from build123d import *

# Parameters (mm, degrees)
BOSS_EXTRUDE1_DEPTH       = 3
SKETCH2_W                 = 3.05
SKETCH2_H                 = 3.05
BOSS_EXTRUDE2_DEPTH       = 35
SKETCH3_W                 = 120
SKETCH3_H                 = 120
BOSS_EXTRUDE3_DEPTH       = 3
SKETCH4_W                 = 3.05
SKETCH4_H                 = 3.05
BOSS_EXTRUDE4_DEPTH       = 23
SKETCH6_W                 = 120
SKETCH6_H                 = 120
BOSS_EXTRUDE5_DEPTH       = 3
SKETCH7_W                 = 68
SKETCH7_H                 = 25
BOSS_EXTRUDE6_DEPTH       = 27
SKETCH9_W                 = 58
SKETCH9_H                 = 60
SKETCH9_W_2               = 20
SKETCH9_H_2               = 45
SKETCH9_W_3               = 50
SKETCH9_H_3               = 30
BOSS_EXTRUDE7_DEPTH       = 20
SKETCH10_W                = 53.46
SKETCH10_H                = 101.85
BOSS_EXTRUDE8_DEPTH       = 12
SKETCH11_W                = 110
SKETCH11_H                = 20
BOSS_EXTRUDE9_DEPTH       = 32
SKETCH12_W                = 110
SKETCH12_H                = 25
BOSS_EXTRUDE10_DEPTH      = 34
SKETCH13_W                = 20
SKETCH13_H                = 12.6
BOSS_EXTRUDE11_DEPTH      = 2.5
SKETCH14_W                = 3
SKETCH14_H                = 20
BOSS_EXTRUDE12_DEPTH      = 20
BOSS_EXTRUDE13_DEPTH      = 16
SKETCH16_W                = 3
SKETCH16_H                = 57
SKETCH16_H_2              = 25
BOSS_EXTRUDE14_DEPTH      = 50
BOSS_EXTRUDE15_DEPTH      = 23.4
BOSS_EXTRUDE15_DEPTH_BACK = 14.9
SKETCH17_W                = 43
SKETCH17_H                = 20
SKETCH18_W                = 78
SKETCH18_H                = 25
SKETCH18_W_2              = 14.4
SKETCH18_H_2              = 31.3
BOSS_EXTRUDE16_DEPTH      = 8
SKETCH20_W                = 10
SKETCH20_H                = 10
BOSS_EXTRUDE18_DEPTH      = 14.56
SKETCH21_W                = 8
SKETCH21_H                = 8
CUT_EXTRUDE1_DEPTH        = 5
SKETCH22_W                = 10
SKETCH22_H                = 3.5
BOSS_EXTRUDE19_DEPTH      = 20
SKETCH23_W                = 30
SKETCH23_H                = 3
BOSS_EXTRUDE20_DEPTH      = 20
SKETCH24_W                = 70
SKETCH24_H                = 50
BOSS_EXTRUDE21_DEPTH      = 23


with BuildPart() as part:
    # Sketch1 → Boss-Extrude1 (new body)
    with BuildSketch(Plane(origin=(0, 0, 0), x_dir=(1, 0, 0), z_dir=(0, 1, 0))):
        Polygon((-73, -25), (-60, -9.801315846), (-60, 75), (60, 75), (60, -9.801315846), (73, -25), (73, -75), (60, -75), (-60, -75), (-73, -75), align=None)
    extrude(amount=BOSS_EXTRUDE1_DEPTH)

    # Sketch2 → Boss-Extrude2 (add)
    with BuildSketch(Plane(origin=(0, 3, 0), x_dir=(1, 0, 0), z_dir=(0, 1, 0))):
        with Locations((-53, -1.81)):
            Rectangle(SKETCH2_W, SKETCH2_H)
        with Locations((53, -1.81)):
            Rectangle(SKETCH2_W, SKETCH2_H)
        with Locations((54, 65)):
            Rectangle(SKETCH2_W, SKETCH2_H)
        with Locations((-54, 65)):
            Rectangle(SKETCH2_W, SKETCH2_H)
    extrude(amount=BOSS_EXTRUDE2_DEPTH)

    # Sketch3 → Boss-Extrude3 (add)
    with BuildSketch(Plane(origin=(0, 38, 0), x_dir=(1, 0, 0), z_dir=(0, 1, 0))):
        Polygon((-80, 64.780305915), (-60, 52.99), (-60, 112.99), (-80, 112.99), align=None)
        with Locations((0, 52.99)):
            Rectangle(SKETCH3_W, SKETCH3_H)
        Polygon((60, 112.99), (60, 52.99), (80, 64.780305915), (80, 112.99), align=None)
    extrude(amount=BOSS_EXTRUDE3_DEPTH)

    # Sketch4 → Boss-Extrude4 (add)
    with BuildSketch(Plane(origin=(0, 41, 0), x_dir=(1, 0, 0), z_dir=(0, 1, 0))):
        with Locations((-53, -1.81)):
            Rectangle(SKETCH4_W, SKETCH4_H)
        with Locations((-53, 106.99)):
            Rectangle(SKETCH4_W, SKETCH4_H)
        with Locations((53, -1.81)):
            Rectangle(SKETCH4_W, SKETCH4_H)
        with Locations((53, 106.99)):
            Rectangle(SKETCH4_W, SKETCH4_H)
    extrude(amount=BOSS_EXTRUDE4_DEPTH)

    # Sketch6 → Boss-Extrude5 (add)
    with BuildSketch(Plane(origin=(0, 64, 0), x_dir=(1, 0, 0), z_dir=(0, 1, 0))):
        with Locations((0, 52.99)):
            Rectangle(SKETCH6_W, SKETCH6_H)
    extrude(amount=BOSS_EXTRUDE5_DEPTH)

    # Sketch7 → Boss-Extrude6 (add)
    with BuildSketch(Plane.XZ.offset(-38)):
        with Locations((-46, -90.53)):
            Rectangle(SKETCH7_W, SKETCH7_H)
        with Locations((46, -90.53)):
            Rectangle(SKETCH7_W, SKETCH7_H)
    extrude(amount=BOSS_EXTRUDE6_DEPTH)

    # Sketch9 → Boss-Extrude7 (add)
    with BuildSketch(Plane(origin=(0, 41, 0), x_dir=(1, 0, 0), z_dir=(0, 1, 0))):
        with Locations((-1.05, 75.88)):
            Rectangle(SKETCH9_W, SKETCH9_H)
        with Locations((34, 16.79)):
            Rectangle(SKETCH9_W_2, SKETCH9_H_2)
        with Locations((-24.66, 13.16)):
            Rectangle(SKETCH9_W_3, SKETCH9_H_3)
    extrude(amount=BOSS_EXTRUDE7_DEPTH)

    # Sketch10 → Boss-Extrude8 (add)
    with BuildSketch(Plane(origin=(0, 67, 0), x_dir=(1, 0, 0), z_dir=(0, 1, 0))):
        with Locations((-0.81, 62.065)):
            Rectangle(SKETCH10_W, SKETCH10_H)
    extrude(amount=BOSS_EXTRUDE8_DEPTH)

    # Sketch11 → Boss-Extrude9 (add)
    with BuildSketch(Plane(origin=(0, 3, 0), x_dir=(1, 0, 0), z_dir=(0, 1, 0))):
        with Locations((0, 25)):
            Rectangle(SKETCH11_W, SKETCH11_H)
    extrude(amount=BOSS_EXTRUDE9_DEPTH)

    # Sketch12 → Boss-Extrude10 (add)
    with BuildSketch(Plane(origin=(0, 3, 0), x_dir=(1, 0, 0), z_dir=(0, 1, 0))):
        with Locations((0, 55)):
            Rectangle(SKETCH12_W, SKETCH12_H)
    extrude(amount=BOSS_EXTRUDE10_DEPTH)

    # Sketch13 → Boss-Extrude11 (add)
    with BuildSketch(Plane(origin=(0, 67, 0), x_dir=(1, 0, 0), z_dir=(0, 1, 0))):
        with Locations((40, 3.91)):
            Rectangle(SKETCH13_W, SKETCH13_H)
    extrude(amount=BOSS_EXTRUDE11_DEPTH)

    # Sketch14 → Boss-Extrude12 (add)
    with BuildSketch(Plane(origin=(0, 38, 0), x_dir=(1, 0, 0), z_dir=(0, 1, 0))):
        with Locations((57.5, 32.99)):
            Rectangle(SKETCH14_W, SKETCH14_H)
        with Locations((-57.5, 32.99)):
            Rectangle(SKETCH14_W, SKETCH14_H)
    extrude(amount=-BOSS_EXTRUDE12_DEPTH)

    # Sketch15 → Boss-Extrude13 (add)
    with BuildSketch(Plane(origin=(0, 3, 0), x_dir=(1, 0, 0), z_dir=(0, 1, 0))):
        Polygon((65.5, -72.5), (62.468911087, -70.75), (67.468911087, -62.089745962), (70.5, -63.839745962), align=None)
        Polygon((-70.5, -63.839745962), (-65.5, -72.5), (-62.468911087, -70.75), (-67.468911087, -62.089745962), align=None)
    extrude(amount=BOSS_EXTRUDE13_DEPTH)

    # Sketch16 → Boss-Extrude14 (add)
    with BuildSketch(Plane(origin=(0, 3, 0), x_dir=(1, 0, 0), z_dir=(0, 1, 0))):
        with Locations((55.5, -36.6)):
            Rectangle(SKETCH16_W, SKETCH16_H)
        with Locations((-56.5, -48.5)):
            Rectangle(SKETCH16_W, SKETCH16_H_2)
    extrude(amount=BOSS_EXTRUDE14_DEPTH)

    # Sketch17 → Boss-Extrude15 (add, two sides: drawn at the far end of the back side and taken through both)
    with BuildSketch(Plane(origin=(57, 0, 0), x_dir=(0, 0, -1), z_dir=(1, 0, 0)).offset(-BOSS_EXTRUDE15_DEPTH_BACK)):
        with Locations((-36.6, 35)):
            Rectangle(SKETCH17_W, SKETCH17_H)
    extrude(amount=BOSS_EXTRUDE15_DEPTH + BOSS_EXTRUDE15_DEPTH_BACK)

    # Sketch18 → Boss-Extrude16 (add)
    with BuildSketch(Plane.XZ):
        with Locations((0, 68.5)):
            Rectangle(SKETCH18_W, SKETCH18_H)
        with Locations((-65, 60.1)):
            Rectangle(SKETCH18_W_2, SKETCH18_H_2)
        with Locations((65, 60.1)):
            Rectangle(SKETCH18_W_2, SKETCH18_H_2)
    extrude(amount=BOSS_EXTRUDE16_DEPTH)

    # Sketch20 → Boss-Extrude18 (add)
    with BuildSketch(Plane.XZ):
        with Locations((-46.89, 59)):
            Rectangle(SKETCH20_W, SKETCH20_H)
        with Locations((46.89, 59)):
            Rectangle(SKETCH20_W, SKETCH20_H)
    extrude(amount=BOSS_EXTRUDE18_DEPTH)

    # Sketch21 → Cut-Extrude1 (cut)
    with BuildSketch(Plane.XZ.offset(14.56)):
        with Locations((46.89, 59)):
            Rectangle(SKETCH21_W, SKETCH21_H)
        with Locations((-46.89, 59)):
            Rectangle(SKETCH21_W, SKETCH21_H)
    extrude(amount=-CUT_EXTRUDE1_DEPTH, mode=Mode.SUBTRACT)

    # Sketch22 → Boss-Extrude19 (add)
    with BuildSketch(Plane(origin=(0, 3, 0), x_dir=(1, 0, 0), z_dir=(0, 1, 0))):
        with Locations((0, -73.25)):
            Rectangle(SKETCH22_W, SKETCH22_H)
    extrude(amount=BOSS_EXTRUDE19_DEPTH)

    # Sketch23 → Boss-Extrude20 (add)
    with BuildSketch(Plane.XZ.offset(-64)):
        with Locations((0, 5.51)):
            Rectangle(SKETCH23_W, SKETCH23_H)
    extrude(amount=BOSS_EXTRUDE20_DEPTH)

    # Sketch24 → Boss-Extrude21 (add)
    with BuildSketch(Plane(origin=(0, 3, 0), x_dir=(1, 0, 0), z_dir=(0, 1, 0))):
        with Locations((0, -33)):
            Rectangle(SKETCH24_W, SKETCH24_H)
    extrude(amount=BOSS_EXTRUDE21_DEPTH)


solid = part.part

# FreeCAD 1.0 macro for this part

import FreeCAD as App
import Part
import Sketcher

V = App.Vector
Q = App.Units.Quantity


def add_polygon(sketch, points):
    """Adds a closed chain of lines whose ends are joined by coincident constraints."""
    first, n = sketch.GeometryCount, len(points)
    for a, b in zip(points, points[1:] + points[:1]):
        sketch.addGeometry(Part.LineSegment(App.Vector(*a, 0), App.Vector(*b, 0)), False)
    for i in range(n):
        sketch.addConstraint(Sketcher.Constraint("Coincident", first + i, 2, first + (i + 1) % n, 1))

doc = App.newDocument("Part")
body = doc.addObject("PartDesign::Body", "Body")

sketch1 = body.newObject("Sketcher::SketchObject", "Sketch")
sketch1.AttachmentSupport = (doc.getObject("XZ_Plane"), [""])
sketch1.MapMode = "FlatFace"
add_polygon(sketch1, [(-60, 9.801316), (-73, 25), (-73, 75), (73, 75), (73, 25), (60, 9.801316), (60, -75), (-60, -75)])
sketch1.addConstraint(Sketcher.Constraint("Vertical", 1))
sketch1.addConstraint(Sketcher.Constraint("Horizontal", 2))
sketch1.addConstraint(Sketcher.Constraint("Vertical", 3))
sketch1.addConstraint(Sketcher.Constraint("Vertical", 5))
sketch1.addConstraint(Sketcher.Constraint("Horizontal", 6))
sketch1.addConstraint(Sketcher.Constraint("Vertical", 7))
sketch1.addConstraint(Sketcher.Constraint("Symmetric", 0, 2, 3, 2, -2))
sketch1.addConstraint(Sketcher.Constraint("Symmetric", 4, 2, 7, 2, -2))
sketch1.addConstraint(Sketcher.Constraint("DistanceX", 2, 1, 2, 2, Q("146 mm")))
sketch1.addConstraint(Sketcher.Constraint("DistanceX", 6, 2, 6, 1, Q("120 mm")))
sketch1.addConstraint(Sketcher.Constraint("DistanceY", 1, 1, 1, 2, Q("50 mm")))
sketch1.addConstraint(Sketcher.Constraint("Distance", 0, Q("20 mm")))
sketch1.addConstraint(Sketcher.Constraint("DistanceY", -1, 1, 0, 2, Q("25 mm")))
sketch1.addConstraint(Sketcher.Constraint("DistanceY", 5, 2, -1, 1, Q("75 mm")))
pad1 = body.newObject("PartDesign::Pad", "Pad")
pad1.Profile = sketch1
pad1.Length = 3
pad1.Reversed = True

sketch2 = body.newObject("Sketcher::SketchObject", "Sketch001")
sketch2.AttachmentSupport = (doc.getObject("XZ_Plane"), [""])
sketch2.MapMode = "FlatFace"
sketch2.AttachmentOffset = App.Placement(V(0, 0, -3), App.Rotation())
add_polygon(sketch2, [(-54.525, 0.285), (-54.525, 3.335), (-51.475, 3.335), (-51.475, 0.285)])
add_polygon(sketch2, [(51.475, 0.285), (51.475, 3.335), (54.525, 3.335), (54.525, 0.285)])
add_polygon(sketch2, [(52.475, -66.525), (52.475, -63.475), (55.525, -63.475), (55.525, -66.525)])
add_polygon(sketch2, [(-55.525, -66.525), (-55.525, -63.475), (-52.475, -63.475), (-52.475, -66.525)])
sketch2.addConstraint(Sketcher.Constraint("Vertical", 0))
sketch2.addConstraint(Sketcher.Constraint("Horizontal", 1))
sketch2.addConstraint(Sketcher.Constraint("Vertical", 2))
sketch2.addConstraint(Sketcher.Constraint("Horizontal", 3))
sketch2.addConstraint(Sketcher.Constraint("Vertical", 4))
sketch2.addConstraint(Sketcher.Constraint("Horizontal", 5))
sketch2.addConstraint(Sketcher.Constraint("Vertical", 6))
sketch2.addConstraint(Sketcher.Constraint("Horizontal", 7))
sketch2.addConstraint(Sketcher.Constraint("Vertical", 8))
sketch2.addConstraint(Sketcher.Constraint("Horizontal", 9))
sketch2.addConstraint(Sketcher.Constraint("Vertical", 10))
sketch2.addConstraint(Sketcher.Constraint("Horizontal", 11))
sketch2.addConstraint(Sketcher.Constraint("Vertical", 12))
sketch2.addConstraint(Sketcher.Constraint("Horizontal", 13))
sketch2.addConstraint(Sketcher.Constraint("Vertical", 14))
sketch2.addConstraint(Sketcher.Constraint("Horizontal", 15))
sketch2.addConstraint(Sketcher.Constraint("Symmetric", 1, 2, 4, 2, -2))
sketch2.addConstraint(Sketcher.Constraint("Symmetric", 3, 2, 6, 2, -2))
sketch2.addConstraint(Sketcher.Constraint("Symmetric", 9, 2, 12, 2, -2))
sketch2.addConstraint(Sketcher.Constraint("Symmetric", 11, 2, 14, 2, -2))
sketch2.addConstraint(Sketcher.Constraint("Equal", 7, 9))
sketch2.addConstraint(Sketcher.Constraint("Equal", 15, 0))
sketch2.addConstraint(Sketcher.Constraint("Equal", 6, 8))
sketch2.addConstraint(Sketcher.Constraint("DistanceX", 0, 2, 4, 2, Q("106 mm")))
sketch2.addConstraint(Sketcher.Constraint("DistanceX", 7, 2, 8, 2, Q("1 mm")))
sketch2.addConstraint(Sketcher.Constraint("DistanceX", 1, 1, 1, 2, Q("3.05 mm")))
sketch2.addConstraint(Sketcher.Constraint("DistanceY", 8, 2, 7, 2, Q("63.76 mm")))
sketch2.addConstraint(Sketcher.Constraint("DistanceY", -1, 1, 0, 2, Q("3.335 mm")))
pad2 = body.newObject("PartDesign::Pad", "Pad001")
pad2.Profile = sketch2
pad2.Length = 35
pad2.Reversed = True

sketch3 = body.newObject("Sketcher::SketchObject", "Sketch002")
sketch3.AttachmentSupport = (doc.getObject("XZ_Plane"), [""])
sketch3.MapMode = "FlatFace"
sketch3.AttachmentOffset = App.Placement(V(0, 0, -38), App.Rotation())
add_polygon(sketch3, [(-80, -64.780306), (-60, -52.99), (-60, 7.01), (60, 7.01), (60, -52.99), (80, -64.780306), (80, -112.99), (-80, -112.99)])
sketch3.addConstraint(Sketcher.Constraint("Vertical", 1))
sketch3.addConstraint(Sketcher.Constraint("Horizontal", 2))
sketch3.addConstraint(Sketcher.Constraint("Vertical", 3))
sketch3.addConstraint(Sketcher.Constraint("Vertical", 5))
sketch3.addConstraint(Sketcher.Constraint("Horizontal", 6))
sketch3.addConstraint(Sketcher.Constraint("Vertical", 7))
sketch3.addConstraint(Sketcher.Constraint("Symmetric", 0, 2, 3, 2, -2))
sketch3.addConstraint(Sketcher.Constraint("Symmetric", 4, 2, 7, 2, -2))
sketch3.addConstraint(Sketcher.Constraint("DistanceX", 2, 1, 2, 2, Q("120 mm")))
sketch3.addConstraint(Sketcher.Constraint("DistanceX", 6, 2, 6, 1, Q("160 mm")))
sketch3.addConstraint(Sketcher.Constraint("DistanceY", 1, 1, 1, 2, Q("60 mm")))
sketch3.addConstraint(Sketcher.Constraint("DistanceY", 5, 2, 3, 2, Q("60 mm")))
sketch3.addConstraint(Sketcher.Constraint("Angle", 0, Q("30.52 deg")))
sketch3.addConstraint(Sketcher.Constraint("DistanceY", 0, 2, -1, 1, Q("52.99 mm")))
pad3 = body.newObject("PartDesign::Pad", "Pad002")
pad3.Profile = sketch3
pad3.Length = 3
pad3.Reversed = True

sketch4 = body.newObject("Sketcher::SketchObject", "Sketch003")
sketch4.AttachmentSupport = (doc.getObject("XZ_Plane"), [""])
sketch4.MapMode = "FlatFace"
sketch4.AttachmentOffset = App.Placement(V(0, 0, -41), App.Rotation())
add_polygon(sketch4, [(-54.525, 0.285), (-54.525, 3.335), (-51.475, 3.335), (-51.475, 0.285)])
add_polygon(sketch4, [(-54.525, -108.515), (-54.525, -105.465), (-51.475, -105.465), (-51.475, -108.515)])
add_polygon(sketch4, [(51.475, 0.285), (51.475, 3.335), (54.525, 3.335), (54.525, 0.285)])
add_polygon(sketch4, [(51.475, -108.515), (51.475, -105.465), (54.525, -105.465), (54.525, -108.515)])
sketch4.addConstraint(Sketcher.Constraint("Vertical", 0))
sketch4.addConstraint(Sketcher.Constraint("Horizontal", 1))
sketch4.addConstraint(Sketcher.Constraint("Vertical", 2))
sketch4.addConstraint(Sketcher.Constraint("Horizontal", 3))
sketch4.addConstraint(Sketcher.Constraint("Vertical", 4))
sketch4.addConstraint(Sketcher.Constraint("Horizontal", 5))
sketch4.addConstraint(Sketcher.Constraint("Vertical", 6))
sketch4.addConstraint(Sketcher.Constraint("Horizontal", 7))
sketch4.addConstraint(Sketcher.Constraint("Vertical", 8))
sketch4.addConstraint(Sketcher.Constraint("Horizontal", 9))
sketch4.addConstraint(Sketcher.Constraint("Vertical", 10))
sketch4.addConstraint(Sketcher.Constraint("Horizontal", 11))
sketch4.addConstraint(Sketcher.Constraint("Vertical", 12))
sketch4.addConstraint(Sketcher.Constraint("Horizontal", 13))
sketch4.addConstraint(Sketcher.Constraint("Vertical", 14))
sketch4.addConstraint(Sketcher.Constraint("Horizontal", 15))
sketch4.addConstraint(Sketcher.Constraint("Symmetric", 1, 2, 8, 2, -2))
sketch4.addConstraint(Sketcher.Constraint("Symmetric", 3, 2, 10, 2, -2))
sketch4.addConstraint(Sketcher.Constraint("Symmetric", 5, 2, 12, 2, -2))
sketch4.addConstraint(Sketcher.Constraint("Symmetric", 7, 2, 14, 2, -2))
sketch4.addConstraint(Sketcher.Constraint("Vertical", 3, 2, 4, 2))
sketch4.addConstraint(Sketcher.Constraint("Vertical", 2, 2, 5, 2))
sketch4.addConstraint(Sketcher.Constraint("Equal", 15, 0))
sketch4.addConstraint(Sketcher.Constraint("Equal", 2, 4))
sketch4.addConstraint(Sketcher.Constraint("DistanceX", 0, 2, 8, 2, Q("106 mm")))
sketch4.addConstraint(Sketcher.Constraint("DistanceX", 1, 1, 1, 2, Q("3.05 mm")))
sketch4.addConstraint(Sketcher.Constraint("DistanceY", 4, 2, 0, 2, Q("108.8 mm")))
sketch4.addConstraint(Sketcher.Constraint("DistanceY", -1, 1, 0, 2, Q("3.335 mm")))
pad4 = body.newObject("PartDesign::Pad", "Pad003")
pad4.Profile = sketch4
pad4.Length = 23
pad4.Reversed = True

sketch5 = body.newObject("Sketcher::SketchObject", "Sketch004")
sketch5.AttachmentSupport = (doc.getObject("XZ_Plane"), [""])
sketch5.MapMode = "FlatFace"
sketch5.AttachmentOffset = App.Placement(V(0, 0, -64), App.Rotation())
add_polygon(sketch5, [(-60, -112.99), (-60, 7.01), (60, 7.01), (60, -112.99)])
sketch5.addConstraint(Sketcher.Constraint("Vertical", 0))
sketch5.addConstraint(Sketcher.Constraint("Horizontal", 1))
sketch5.addConstraint(Sketcher.Constraint("Vertical", 2))
sketch5.addConstraint(Sketcher.Constraint("Horizontal", 3))
sketch5.addConstraint(Sketcher.Constraint("Equal", 3, 0))
sketch5.addConstraint(Sketcher.Constraint("DistanceX", 1, 1, 1, 2, Q("120 mm")))
sketch5.addConstraint(Sketcher.Constraint("DistanceX", 0, 2, -1, 1, Q("60 mm")))
sketch5.addConstraint(Sketcher.Constraint("DistanceY", -1, 1, 0, 2, Q("7.01 mm")))
pad5 = body.newObject("PartDesign::Pad", "Pad004")
pad5.Profile = sketch5
pad5.Length = 3
pad5.Reversed = True

sketch6 = body.newObject("Sketcher::SketchObject", "Sketch005")
sketch6.AttachmentSupport = (doc.getObject("XZ_Plane"), [""])
sketch6.MapMode = "FlatFace"
sketch6.AttachmentOffset = App.Placement(V(0, 0, -38), App.Rotation())
add_polygon(sketch6, [(-80, -78.03), (-80, -103.03), (-12, -103.03), (-12, -78.03)])
add_polygon(sketch6, [(12, -78.03), (12, -103.03), (80, -103.03), (80, -78.03)])
sketch6.addConstraint(Sketcher.Constraint("Vertical", 0))
sketch6.addConstraint(Sketcher.Constraint("Horizontal", 1))
sketch6.addConstraint(Sketcher.Constraint("Vertical", 2))
sketch6.addConstraint(Sketcher.Constraint("Horizontal", 3))
sketch6.addConstraint(Sketcher.Constraint("Vertical", 4))
sketch6.addConstraint(Sketcher.Constraint("Horizontal", 5))
sketch6.addConstraint(Sketcher.Constraint("Vertical", 6))
sketch6.addConstraint(Sketcher.Constraint("Horizontal", 7))
sketch6.addConstraint(Sketcher.Constraint("Symmetric", 1, 2, 4, 2, -2))
sketch6.addConstraint(Sketcher.Constraint("Symmetric", 3, 2, 6, 2, -2))
sketch6.addConstraint(Sketcher.Constraint("DistanceX", 1, 1, 1, 2, Q("68 mm")))
sketch6.addConstraint(Sketcher.Constraint("DistanceY", 0, 2, 0, 1, Q("25 mm")))
sketch6.addConstraint(Sketcher.Constraint("DistanceX", 0, 2, -1, 1, Q("80 mm")))
sketch6.addConstraint(Sketcher.Constraint("DistanceY", 0, 2, -1, 1, Q("103.03 mm")))
pad6 = body.newObject("PartDesign::Pad", "Pad005")
pad6.Profile = sketch6
pad6.Length = 27

sketch7 = body.newObject("Sketcher::SketchObject", "Sketch006")
sketch7.AttachmentSupport = (doc.getObject("XZ_Plane"), [""])
sketch7.MapMode = "FlatFace"
sketch7.AttachmentOffset = App.Placement(V(0, 0, -41), App.Rotation())
add_polygon(sketch7, [(-30.05, -105.88), (-30.05, -45.88), (27.95, -45.88), (27.95, -105.88)])
add_polygon(sketch7, [(24, -39.29), (24, 5.71), (44, 5.71), (44, -39.29)])
add_polygon(sketch7, [(-49.66, -28.16), (-49.66, 1.84), (0.34, 1.84), (0.34, -28.16)])
sketch7.addConstraint(Sketcher.Constraint("Vertical", 0))
sketch7.addConstraint(Sketcher.Constraint("Horizontal", 1))
sketch7.addConstraint(Sketcher.Constraint("Vertical", 2))
sketch7.addConstraint(Sketcher.Constraint("Horizontal", 3))
sketch7.addConstraint(Sketcher.Constraint("Vertical", 4))
sketch7.addConstraint(Sketcher.Constraint("Horizontal", 5))
sketch7.addConstraint(Sketcher.Constraint("Vertical", 6))
sketch7.addConstraint(Sketcher.Constraint("Horizontal", 7))
sketch7.addConstraint(Sketcher.Constraint("Vertical", 8))
sketch7.addConstraint(Sketcher.Constraint("Horizontal", 9))
sketch7.addConstraint(Sketcher.Constraint("Vertical", 10))
sketch7.addConstraint(Sketcher.Constraint("Horizontal", 11))
sketch7.addConstraint(Sketcher.Constraint("DistanceX", 1, 1, 1, 2, Q("58 mm")))
sketch7.addConstraint(Sketcher.Constraint("DistanceX", 5, 1, 5, 2, Q("20 mm")))
sketch7.addConstraint(Sketcher.Constraint("DistanceX", 9, 1, 9, 2, Q("50 mm")))
sketch7.addConstraint(Sketcher.Constraint("DistanceY", 0, 1, 0, 2, Q("60 mm")))
sketch7.addConstraint(Sketcher.Constraint("DistanceY", 4, 1, 4, 2, Q("45 mm")))
sketch7.addConstraint(Sketcher.Constraint("DistanceY", 8, 1, 8, 2, Q("30 mm")))
sketch7.addConstraint(Sketcher.Constraint("DistanceX", -1, 1, 4, 2, Q("24 mm")))
sketch7.addConstraint(Sketcher.Constraint("DistanceX", 0, 2, -1, 1, Q("30.05 mm")))
sketch7.addConstraint(Sketcher.Constraint("DistanceY", 0, 2, -1, 1, Q("45.88 mm")))
sketch7.addConstraint(Sketcher.Constraint("DistanceY", -1, 1, 4, 2, Q("5.71 mm")))
sketch7.addConstraint(Sketcher.Constraint("DistanceX", 8, 2, -1, 1, Q("49.66 mm")))
sketch7.addConstraint(Sketcher.Constraint("DistanceY", -1, 1, 8, 2, Q("1.84 mm")))
pad7 = body.newObject("PartDesign::Pad", "Pad006")
pad7.Profile = sketch7
pad7.Length = 20
pad7.Reversed = True

sketch8 = body.newObject("Sketcher::SketchObject", "Sketch007")
sketch8.AttachmentSupport = (doc.getObject("XZ_Plane"), [""])
sketch8.MapMode = "FlatFace"
sketch8.AttachmentOffset = App.Placement(V(0, 0, -67), App.Rotation())
add_polygon(sketch8, [(-27.54, -112.99), (-27.54, -11.14), (25.92, -11.14), (25.92, -112.99)])
sketch8.addConstraint(Sketcher.Constraint("Vertical", 0))
sketch8.addConstraint(Sketcher.Constraint("Horizontal", 1))
sketch8.addConstraint(Sketcher.Constraint("Vertical", 2))
sketch8.addConstraint(Sketcher.Constraint("Horizontal", 3))
sketch8.addConstraint(Sketcher.Constraint("DistanceX", 1, 1, 1, 2, Q("53.46 mm")))
sketch8.addConstraint(Sketcher.Constraint("DistanceY", 0, 1, 0, 2, Q("101.85 mm")))
sketch8.addConstraint(Sketcher.Constraint("DistanceX", 0, 2, -1, 1, Q("27.54 mm")))
sketch8.addConstraint(Sketcher.Constraint("DistanceY", 0, 2, -1, 1, Q("11.14 mm")))
pad8 = body.newObject("PartDesign::Pad", "Pad007")
pad8.Profile = sketch8
pad8.Length = 12
pad8.Reversed = True

sketch9 = body.newObject("Sketcher::SketchObject", "Sketch008")
sketch9.AttachmentSupport = (doc.getObject("XZ_Plane"), [""])
sketch9.MapMode = "FlatFace"
sketch9.AttachmentOffset = App.Placement(V(0, 0, -3), App.Rotation())
add_polygon(sketch9, [(-55, -35), (-55, -15), (55, -15), (55, -35)])
sketch9.addConstraint(Sketcher.Constraint("Vertical", 0))
sketch9.addConstraint(Sketcher.Constraint("Horizontal", 1))
sketch9.addConstraint(Sketcher.Constraint("Vertical", 2))
sketch9.addConstraint(Sketcher.Constraint("Horizontal", 3))
sketch9.addConstraint(Sketcher.Constraint("DistanceX", 1, 1, 1, 2, Q("110 mm")))
sketch9.addConstraint(Sketcher.Constraint("DistanceY", 0, 1, 0, 2, Q("20 mm")))
sketch9.addConstraint(Sketcher.Constraint("DistanceX", 0, 2, -1, 1, Q("55 mm")))
sketch9.addConstraint(Sketcher.Constraint("DistanceY", 0, 2, -1, 1, Q("15 mm")))
pad9 = body.newObject("PartDesign::Pad", "Pad008")
pad9.Profile = sketch9
pad9.Length = 32
pad9.Reversed = True

sketch10 = body.newObject("Sketcher::SketchObject", "Sketch009")
sketch10.AttachmentSupport = (doc.getObject("XZ_Plane"), [""])
sketch10.MapMode = "FlatFace"
sketch10.AttachmentOffset = App.Placement(V(0, 0, -3), App.Rotation())
add_polygon(sketch10, [(-55, -67.5), (-55, -42.5), (55, -42.5), (55, -67.5)])
sketch10.addConstraint(Sketcher.Constraint("Vertical", 0))
sketch10.addConstraint(Sketcher.Constraint("Horizontal", 1))
sketch10.addConstraint(Sketcher.Constraint("Vertical", 2))
sketch10.addConstraint(Sketcher.Constraint("Horizontal", 3))
sketch10.addConstraint(Sketcher.Constraint("DistanceX", 1, 1, 1, 2, Q("110 mm")))
sketch10.addConstraint(Sketcher.Constraint("DistanceY", 0, 1, 0, 2, Q("25 mm")))
sketch10.addConstraint(Sketcher.Constraint("DistanceX", 0, 2, -1, 1, Q("55 mm")))
sketch10.addConstraint(Sketcher.Constraint("DistanceY", 0, 2, -1, 1, Q("42.5 mm")))
pad10 = body.newObject("PartDesign::Pad", "Pad009")
pad10.Profile = sketch10
pad10.Length = 34
pad10.Reversed = True

sketch11 = body.newObject("Sketcher::SketchObject", "Sketch010")
sketch11.AttachmentSupport = (doc.getObject("XZ_Plane"), [""])
sketch11.MapMode = "FlatFace"
sketch11.AttachmentOffset = App.Placement(V(0, 0, -67), App.Rotation())
add_polygon(sketch11, [(30, -10.21), (30, 2.39), (50, 2.39), (50, -10.21)])
sketch11.addConstraint(Sketcher.Constraint("Vertical", 0))
sketch11.addConstraint(Sketcher.Constraint("Horizontal", 1))
sketch11.addConstraint(Sketcher.Constraint("Vertical", 2))
sketch11.addConstraint(Sketcher.Constraint("Horizontal", 3))
sketch11.addConstraint(Sketcher.Constraint("DistanceX", 1, 1, 1, 2, Q("20 mm")))
sketch11.addConstraint(Sketcher.Constraint("DistanceY", 0, 1, 0, 2, Q("12.6 mm")))
sketch11.addConstraint(Sketcher.Constraint("DistanceX", -1, 1, 0, 2, Q("30 mm")))
sketch11.addConstraint(Sketcher.Constraint("DistanceY", -1, 1, 0, 2, Q("2.39 mm")))
pad11 = body.newObject("PartDesign::Pad", "Pad010")
pad11.Profile = sketch11
pad11.Length = 2.5
pad11.Reversed = True

sketch12 = body.newObject("Sketcher::SketchObject", "Sketch011")
sketch12.AttachmentSupport = (doc.getObject("XZ_Plane"), [""])
sketch12.MapMode = "FlatFace"
sketch12.AttachmentOffset = App.Placement(V(0, 0, -38), App.Rotation())
add_polygon(sketch12, [(56, -42.99), (56, -22.99), (59, -22.99), (59, -42.99)])
add_polygon(sketch12, [(-59, -42.99), (-59, -22.99), (-56, -22.99), (-56, -42.99)])
sketch12.addConstraint(Sketcher.Constraint("Vertical", 0))
sketch12.addConstraint(Sketcher.Constraint("Horizontal", 1))
sketch12.addConstraint(Sketcher.Constraint("Vertical", 2))
sketch12.addConstraint(Sketcher.Constraint("Horizontal", 3))
sketch12.addConstraint(Sketcher.Constraint("Vertical", 4))
sketch12.addConstraint(Sketcher.Constraint("Horizontal", 5))
sketch12.addConstraint(Sketcher.Constraint("Vertical", 6))
sketch12.addConstraint(Sketcher.Constraint("Horizontal", 7))
sketch12.addConstraint(Sketcher.Constraint("Symmetric", 1, 2, 4, 2, -2))
sketch12.addConstraint(Sketcher.Constraint("Symmetric", 3, 2, 6, 2, -2))
sketch12.addConstraint(Sketcher.Constraint("DistanceX", 1, 1, 1, 2, Q("3 mm")))
sketch12.addConstraint(Sketcher.Constraint("DistanceY", 0, 1, 0, 2, Q("20 mm")))
sketch12.addConstraint(Sketcher.Constraint("DistanceX", -1, 1, 0, 2, Q("56 mm")))
sketch12.addConstraint(Sketcher.Constraint("DistanceY", 0, 2, -1, 1, Q("22.99 mm")))
pad12 = body.newObject("PartDesign::Pad", "Pad011")
pad12.Profile = sketch12
pad12.Length = 20

sketch13 = body.newObject("Sketcher::SketchObject", "Sketch012")
sketch13.AttachmentSupport = (doc.getObject("XZ_Plane"), [""])
sketch13.MapMode = "FlatFace"
sketch13.AttachmentOffset = App.Placement(V(0, 0, -3), App.Rotation())
add_polygon(sketch13, [(62.468911, 70.75), (65.5, 72.5), (70.5, 63.839746), (67.468911, 62.089746)])
add_polygon(sketch13, [(-70.5, 63.839746), (-65.5, 72.5), (-62.468911, 70.75), (-67.468911, 62.089746)])
sketch13.addConstraint(Sketcher.Constraint("Symmetric", 0, 2, 4, 2, -2))
sketch13.addConstraint(Sketcher.Constraint("Symmetric", 3, 2, 5, 2, -2))
sketch13.addConstraint(Sketcher.Constraint("Symmetric", 2, 2, 6, 2, -2))
sketch13.addConstraint(Sketcher.Constraint("Symmetric", 1, 2, 7, 2, -2))
sketch13.addConstraint(Sketcher.Constraint("Perpendicular", 0, 1))
sketch13.addConstraint(Sketcher.Constraint("Perpendicular", 1, 2))
sketch13.addConstraint(Sketcher.Constraint("Perpendicular", 2, 3))
sketch13.addConstraint(Sketcher.Constraint("Angle", 0, Q("30 deg")))
sketch13.addConstraint(Sketcher.Constraint("Distance", 1, Q("10 mm")))
sketch13.addConstraint(Sketcher.Constraint("DistanceX", 4, 2, 0, 2, Q("131 mm")))
sketch13.addConstraint(Sketcher.Constraint("Distance", 0, Q("3.5 mm")))
sketch13.addConstraint(Sketcher.Constraint("DistanceY", -1, 1, 0, 2, Q("72.5 mm")))
pad13 = body.newObject("PartDesign::Pad", "Pad012")
pad13.Profile = sketch13
pad13.Length = 16
pad13.Reversed = True

sketch14 = body.newObject("Sketcher::SketchObject", "Sketch013")
sketch14.AttachmentSupport = (doc.getObject("XZ_Plane"), [""])
sketch14.MapMode = "FlatFace"
sketch14.AttachmentOffset = App.Placement(V(0, 0, -3), App.Rotation())
add_polygon(sketch14, [(54, 8.1), (54, 65.1), (57, 65.1), (57, 8.1)])
add_polygon(sketch14, [(-58, 36), (-58, 61), (-55, 61), (-55, 36)])
sketch14.addConstraint(Sketcher.Constraint("Vertical", 0))
sketch14.addConstraint(Sketcher.Constraint("Horizontal", 1))
sketch14.addConstraint(Sketcher.Constraint("Vertical", 2))
sketch14.addConstraint(Sketcher.Constraint("Horizontal", 3))
sketch14.addConstraint(Sketcher.Constraint("Vertical", 4))
sketch14.addConstraint(Sketcher.Constraint("Horizontal", 5))
sketch14.addConstraint(Sketcher.Constraint("Vertical", 6))
sketch14.addConstraint(Sketcher.Constraint("Horizontal", 7))
sketch14.addConstraint(Sketcher.Constraint("Equal", 3, 5))
sketch14.addConstraint(Sketcher.Constraint("DistanceX", 1, 1, 1, 2, Q("3 mm")))
sketch14.addConstraint(Sketcher.Constraint("DistanceY", 0, 1, 0, 2, Q("57 mm")))
sketch14.addConstraint(Sketcher.Constraint("DistanceY", 4, 1, 4, 2, Q("25 mm")))
sketch14.addConstraint(Sketcher.Constraint("DistanceX", -1, 1, 0, 2, Q("54 mm")))
sketch14.addConstraint(Sketcher.Constraint("DistanceX", 4, 2, -1, 1, Q("58 mm")))
sketch14.addConstraint(Sketcher.Constraint("DistanceY", -1, 1, 4, 2, Q("61 mm")))
sketch14.addConstraint(Sketcher.Constraint("DistanceY", -1, 1, 0, 2, Q("65.1 mm")))
pad14 = body.newObject("PartDesign::Pad", "Pad013")
pad14.Profile = sketch14
pad14.Length = 50
pad14.Reversed = True

sketch15 = body.newObject("Sketcher::SketchObject", "Sketch014")
sketch15.AttachmentSupport = (doc.getObject("YZ_Plane"), [""])
sketch15.MapMode = "FlatFace"
sketch15.AttachmentOffset = App.Placement(V(0, 0, 57), App.Rotation())
add_polygon(sketch15, [(45, 58.1), (25, 58.1), (25, 15.1), (45, 15.1)])
sketch15.addConstraint(Sketcher.Constraint("Horizontal", 0))
sketch15.addConstraint(Sketcher.Constraint("Vertical", 1))
sketch15.addConstraint(Sketcher.Constraint("Horizontal", 2))
sketch15.addConstraint(Sketcher.Constraint("Vertical", 3))
sketch15.addConstraint(Sketcher.Constraint("DistanceX", 0, 2, 0, 1, Q("20 mm")))
sketch15.addConstraint(Sketcher.Constraint("DistanceY", 1, 2, 1, 1, Q("43 mm")))
sketch15.addConstraint(Sketcher.Constraint("DistanceX", -1, 1, 0, 2, Q("25 mm")))
sketch15.addConstraint(Sketcher.Constraint("DistanceY", -1, 1, 0, 2, Q("58.1 mm")))
pad15 = body.newObject("PartDesign::Pad", "Pad014")
pad15.Profile = sketch15
pad15.Type = "TwoLengths"
pad15.Length = 23.4
pad15.Length2 = 14.9

sketch16 = body.newObject("Sketcher::SketchObject", "Sketch015")
sketch16.AttachmentSupport = (doc.getObject("XZ_Plane"), [""])
sketch16.MapMode = "FlatFace"
add_polygon(sketch16, [(-39, 81), (-39, 56), (39, 56), (39, 81)])
add_polygon(sketch16, [(-72.2, 75.75), (-72.2, 44.45), (-57.8, 44.45), (-57.8, 75.75)])
add_polygon(sketch16, [(57.8, 75.75), (57.8, 44.45), (72.2, 44.45), (72.2, 75.75)])
sketch16.addConstraint(Sketcher.Constraint("Vertical", 0))
sketch16.addConstraint(Sketcher.Constraint("Horizontal", 1))
sketch16.addConstraint(Sketcher.Constraint("Vertical", 2))
sketch16.addConstraint(Sketcher.Constraint("Horizontal", 3))
sketch16.addConstraint(Sketcher.Constraint("Vertical", 4))
sketch16.addConstraint(Sketcher.Constraint("Horizontal", 5))
sketch16.addConstraint(Sketcher.Constraint("Vertical", 6))
sketch16.addConstraint(Sketcher.Constraint("Horizontal", 7))
sketch16.addConstraint(Sketcher.Constraint("Vertical", 8))
sketch16.addConstraint(Sketcher.Constraint("Horizontal", 9))
sketch16.addConstraint(Sketcher.Constraint("Vertical", 10))
sketch16.addConstraint(Sketcher.Constraint("Horizontal", 11))
sketch16.addConstraint(Sketcher.Constraint("Symmetric", 5, 2, 8, 2, -2))
sketch16.addConstraint(Sketcher.Constraint("Symmetric", 7, 2, 10, 2, -2))
sketch16.addConstraint(Sketcher.Constraint("DistanceX", 1, 1, 1, 2, Q("78 mm")))
sketch16.addConstraint(Sketcher.Constraint("DistanceY", 0, 2, 0, 1, Q("25 mm")))
sketch16.addConstraint(Sketcher.Constraint("DistanceX", 5, 1, 5, 2, Q("14.4 mm")))
sketch16.addConstraint(Sketcher.Constraint("DistanceY", 4, 2, 4, 1, Q("31.3 mm")))
sketch16.addConstraint(Sketcher.Constraint("DistanceX", 0, 2, -1, 1, Q("39 mm")))
sketch16.addConstraint(Sketcher.Constraint("DistanceY", -1, 1, 0, 2, Q("56 mm")))
sketch16.addConstraint(Sketcher.Constraint("DistanceX", 4, 2, -1, 1, Q("72.2 mm")))
sketch16.addConstraint(Sketcher.Constraint("DistanceY", -1, 1, 4, 2, Q("44.45 mm")))
pad16 = body.newObject("PartDesign::Pad", "Pad015")
pad16.Profile = sketch16
pad16.Length = 8

sketch17 = body.newObject("Sketcher::SketchObject", "Sketch016")
sketch17.AttachmentSupport = (doc.getObject("XZ_Plane"), [""])
sketch17.MapMode = "FlatFace"
add_polygon(sketch17, [(-51.89, 64), (-51.89, 54), (-41.89, 54), (-41.89, 64)])
add_polygon(sketch17, [(41.89, 64), (41.89, 54), (51.89, 54), (51.89, 64)])
sketch17.addConstraint(Sketcher.Constraint("Vertical", 0))
sketch17.addConstraint(Sketcher.Constraint("Horizontal", 1))
sketch17.addConstraint(Sketcher.Constraint("Vertical", 2))
sketch17.addConstraint(Sketcher.Constraint("Horizontal", 3))
sketch17.addConstraint(Sketcher.Constraint("Vertical", 4))
sketch17.addConstraint(Sketcher.Constraint("Horizontal", 5))
sketch17.addConstraint(Sketcher.Constraint("Vertical", 6))
sketch17.addConstraint(Sketcher.Constraint("Horizontal", 7))
sketch17.addConstraint(Sketcher.Constraint("Symmetric", 1, 2, 4, 2, -2))
sketch17.addConstraint(Sketcher.Constraint("Symmetric", 3, 2, 6, 2, -2))
sketch17.addConstraint(Sketcher.Constraint("Equal", 7, 0))
sketch17.addConstraint(Sketcher.Constraint("DistanceX", 1, 1, 1, 2, Q("10 mm")))
sketch17.addConstraint(Sketcher.Constraint("DistanceY", -1, 1, 0, 2, Q("54 mm")))
sketch17.addConstraint(Sketcher.Constraint("DistanceX", 0, 2, -1, 1, Q("51.89 mm")))
pad17 = body.newObject("PartDesign::Pad", "Pad016")
pad17.Profile = sketch17
pad17.Length = 14.56

sketch18 = body.newObject("Sketcher::SketchObject", "Sketch017")
sketch18.AttachmentSupport = (doc.getObject("XZ_Plane"), [""])
sketch18.MapMode = "FlatFace"
sketch18.AttachmentOffset = App.Placement(V(0, 0, 14.56), App.Rotation())
add_polygon(sketch18, [(42.89, 63), (42.89, 55), (50.89, 55), (50.89, 63)])
add_polygon(sketch18, [(-50.89, 63), (-50.89, 55), (-42.89, 55), (-42.89, 63)])
sketch18.addConstraint(Sketcher.Constraint("Vertical", 0))
sketch18.addConstraint(Sketcher.Constraint("Horizontal", 1))
sketch18.addConstraint(Sketcher.Constraint("Vertical", 2))
sketch18.addConstraint(Sketcher.Constraint("Horizontal", 3))
sketch18.addConstraint(Sketcher.Constraint("Vertical", 4))
sketch18.addConstraint(Sketcher.Constraint("Horizontal", 5))
sketch18.addConstraint(Sketcher.Constraint("Vertical", 6))
sketch18.addConstraint(Sketcher.Constraint("Horizontal", 7))
sketch18.addConstraint(Sketcher.Constraint("Symmetric", 1, 2, 4, 2, -2))
sketch18.addConstraint(Sketcher.Constraint("Symmetric", 3, 2, 6, 2, -2))
sketch18.addConstraint(Sketcher.Constraint("Equal", 7, 0))
sketch18.addConstraint(Sketcher.Constraint("DistanceX", 1, 1, 1, 2, Q("8 mm")))
sketch18.addConstraint(Sketcher.Constraint("DistanceY", -1, 1, 0, 2, Q("55 mm")))
sketch18.addConstraint(Sketcher.Constraint("DistanceX", -1, 1, 0, 2, Q("42.89 mm")))
pocket1 = body.newObject("PartDesign::Pocket", "Pocket")
pocket1.Profile = sketch18
pocket1.Length = 5

sketch19 = body.newObject("Sketcher::SketchObject", "Sketch018")
sketch19.AttachmentSupport = (doc.getObject("XZ_Plane"), [""])
sketch19.MapMode = "FlatFace"
sketch19.AttachmentOffset = App.Placement(V(0, 0, -3), App.Rotation())
add_polygon(sketch19, [(-5, 71.5), (-5, 75), (5, 75), (5, 71.5)])
sketch19.addConstraint(Sketcher.Constraint("Vertical", 0))
sketch19.addConstraint(Sketcher.Constraint("Horizontal", 1))
sketch19.addConstraint(Sketcher.Constraint("Vertical", 2))
sketch19.addConstraint(Sketcher.Constraint("Horizontal", 3))
sketch19.addConstraint(Sketcher.Constraint("DistanceX", 1, 1, 1, 2, Q("10 mm")))
sketch19.addConstraint(Sketcher.Constraint("DistanceY", 0, 1, 0, 2, Q("3.5 mm")))
sketch19.addConstraint(Sketcher.Constraint("DistanceX", 0, 2, -1, 1, Q("5 mm")))
sketch19.addConstraint(Sketcher.Constraint("DistanceY", -1, 1, 0, 2, Q("75 mm")))
pad18 = body.newObject("PartDesign::Pad", "Pad017")
pad18.Profile = sketch19
pad18.Length = 20
pad18.Reversed = True

sketch20 = body.newObject("Sketcher::SketchObject", "Sketch019")
sketch20.AttachmentSupport = (doc.getObject("XZ_Plane"), [""])
sketch20.MapMode = "FlatFace"
sketch20.AttachmentOffset = App.Placement(V(0, 0, -64), App.Rotation())
add_polygon(sketch20, [(-15, 7.01), (-15, 4.01), (15, 4.01), (15, 7.01)])
sketch20.addConstraint(Sketcher.Constraint("Vertical", 0))
sketch20.addConstraint(Sketcher.Constraint("Horizontal", 1))
sketch20.addConstraint(Sketcher.Constraint("Vertical", 2))
sketch20.addConstraint(Sketcher.Constraint("Horizontal", 3))
sketch20.addConstraint(Sketcher.Constraint("DistanceX", 1, 1, 1, 2, Q("30 mm")))
sketch20.addConstraint(Sketcher.Constraint("DistanceY", 0, 2, 0, 1, Q("3 mm")))
sketch20.addConstraint(Sketcher.Constraint("DistanceX", 0, 2, -1, 1, Q("15 mm")))
sketch20.addConstraint(Sketcher.Constraint("DistanceY", -1, 1, 0, 2, Q("4.01 mm")))
pad19 = body.newObject("PartDesign::Pad", "Pad018")
pad19.Profile = sketch20
pad19.Length = 20

sketch21 = body.newObject("Sketcher::SketchObject", "Sketch020")
sketch21.AttachmentSupport = (doc.getObject("XZ_Plane"), [""])
sketch21.MapMode = "FlatFace"
sketch21.AttachmentOffset = App.Placement(V(0, 0, -3), App.Rotation())
add_polygon(sketch21, [(-35, 8), (-35, 58), (35, 58), (35, 8)])
sketch21.addConstraint(Sketcher.Constraint("Vertical", 0))
sketch21.addConstraint(Sketcher.Constraint("Horizontal", 1))
sketch21.addConstraint(Sketcher.Constraint("Vertical", 2))
sketch21.addConstraint(Sketcher.Constraint("Horizontal", 3))
sketch21.addConstraint(Sketcher.Constraint("DistanceX", 1, 1, 1, 2, Q("70 mm")))
sketch21.addConstraint(Sketcher.Constraint("DistanceY", 0, 1, 0, 2, Q("50 mm")))
sketch21.addConstraint(Sketcher.Constraint("DistanceX", 0, 2, -1, 1, Q("35 mm")))
sketch21.addConstraint(Sketcher.Constraint("DistanceY", -1, 1, 0, 2, Q("58 mm")))
pad20 = body.newObject("PartDesign::Pad", "Pad019")
pad20.Profile = sketch21
pad20.Length = 23
pad20.Reversed = True

doc.recompute()
